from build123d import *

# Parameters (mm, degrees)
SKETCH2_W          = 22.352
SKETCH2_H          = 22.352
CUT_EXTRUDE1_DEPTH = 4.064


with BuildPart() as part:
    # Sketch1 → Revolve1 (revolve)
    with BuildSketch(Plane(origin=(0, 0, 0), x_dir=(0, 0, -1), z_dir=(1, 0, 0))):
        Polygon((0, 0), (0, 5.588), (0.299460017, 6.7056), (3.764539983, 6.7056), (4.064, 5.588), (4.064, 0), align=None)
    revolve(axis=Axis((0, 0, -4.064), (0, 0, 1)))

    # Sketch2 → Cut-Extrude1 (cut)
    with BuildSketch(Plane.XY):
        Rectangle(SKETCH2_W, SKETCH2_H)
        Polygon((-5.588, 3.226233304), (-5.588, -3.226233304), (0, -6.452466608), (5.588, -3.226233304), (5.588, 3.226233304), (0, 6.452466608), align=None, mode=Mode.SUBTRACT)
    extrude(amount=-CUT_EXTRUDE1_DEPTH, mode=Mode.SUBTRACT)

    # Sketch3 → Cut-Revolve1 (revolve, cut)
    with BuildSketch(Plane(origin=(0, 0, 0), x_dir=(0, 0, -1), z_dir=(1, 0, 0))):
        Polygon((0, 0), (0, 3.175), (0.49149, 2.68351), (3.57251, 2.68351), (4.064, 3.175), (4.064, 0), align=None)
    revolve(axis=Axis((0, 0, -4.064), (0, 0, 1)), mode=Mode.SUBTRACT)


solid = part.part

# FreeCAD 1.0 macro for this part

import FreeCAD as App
import Part
import Sketcher
Q = App.Units.Quantity


def add_polygon(sketch, points):
    """Adds a closed chain of lines whose ends are joined by coincident constraints."""
    first, n = sketch.GeometryCount, len(points)
    for a, b in zip(points, points[1:] + points[:1]):
        sketch.addGeometry(Part.LineSegment(App.Vector(*a, 0), App.Vector(*b, 0)), False)
    for i in range(n):
        sketch.addConstraint(Sketcher.Constraint("Coincident", first + i, 2, first + (i + 1) % n, 1))

doc = App.newDocument("Part")
body = doc.addObject("PartDesign::Body", "Body")

# Sketch on YZ plane
sketch1 = body.newObject("Sketcher::SketchObject", "Sketch")
sketch1.AttachmentSupport = (doc.getObject("YZ_Plane"), [""])
sketch1.MapMode = "FlatFace"
add_polygon(sketch1, [(5.6, 0), (0, 0), (0, -4.1), (5.6, -4.1), (6.7, -3.8), (6.7, -0.3)])  # lines 0-5
sketch1.addConstraint(Sketcher.Constraint("Horizontal", 0))
sketch1.addConstraint(Sketcher.Constraint("Vertical", 1))
sketch1.addConstraint(Sketcher.Constraint("Horizontal", 2))
sketch1.addConstraint(Sketcher.Constraint("Vertical", 4))
sketch1.addConstraint(Sketcher.Constraint("Coincident", 0, 2, -1, 1))
sketch1.addConstraint(Sketcher.Constraint("Vertical", 2, 2, 5, 2))
sketch1.addConstraint(Sketcher.Constraint("Equal", 3, 5))
sketch1.addConstraint(Sketcher.Constraint("Angle", 3, Q("15 deg")))
sketch1.addConstraint(Sketcher.Constraint("DistanceX", 0, 2, 0, 1, Q("0.22 in")))
sketch1.addConstraint(Sketcher.Constraint("DistanceY", 1, 2, 1, 1, Q("0.16 in")))
sketch1.addConstraint(Sketcher.Constraint("DistanceX", -1, 1, 3, 2, Q("0.264 in")))
revolution = body.newObject("PartDesign::Revolution", "Revolution")
revolution.Profile = sketch1
revolution.ReferenceAxis = (sketch1, ["V_Axis"])
revolution.Angle = 360

# Sketch on XY plane
sketch2 = body.newObject("Sketcher::SketchObject", "Sketch001")
sketch2.AttachmentSupport = (doc.getObject("XY_Plane"), [""])
sketch2.MapMode = "FlatFace"
add_polygon(sketch2, [(-11, 11), (-11, -11), (11, -11), (11, 11)])  # lines 0-3
add_polygon(sketch2, [(-6, -3), (-6, 3), (0, 6), (6, 3), (6, -3), (0, -6)])  # lines 4-9
sketch2.addConstraint(Sketcher.Constraint("Vertical", 0))
sketch2.addConstraint(Sketcher.Constraint("Horizontal", 1))
sketch2.addConstraint(Sketcher.Constraint("Vertical", 2))
sketch2.addConstraint(Sketcher.Constraint("Horizontal", 3))
sketch2.addConstraint(Sketcher.Constraint("Vertical", 4))
sketch2.addConstraint(Sketcher.Constraint("Vertical", 7))
sketch2.addConstraint(Sketcher.Constraint("Symmetric", 0, 2, 2, 2, -1, 1))
sketch2.addConstraint(Sketcher.Constraint("Symmetric", 4, 2, 7, 2, -1, 1))
sketch2.addConstraint(Sketcher.Constraint("Symmetric", 5, 2, 8, 2, -1, 1))
sketch2.addConstraint(Sketcher.Constraint("PointOnObject", 5, 2, -2))
sketch2.addConstraint(Sketcher.Constraint("Parallel", 6, 9))
sketch2.addConstraint(Sketcher.Constraint("Horizontal", 4, 2, 6, 2))
sketch2.addConstraint(Sketcher.Constraint("Equal", 3, 0))
sketch2.addConstraint(Sketcher.Constraint("Angle", 5, Q("30 deg")))
sketch2.addConstraint(Sketcher.Constraint("DistanceX", 1, 1, 1, 2, Q("0.88 in")))
sketch2.addConstraint(Sketcher.Constraint("DistanceX", 4, 2, -1, 1, Q("0.22 in")))
sketch2.addConstraint(Sketcher.Constraint("DistanceY", 7, 2, 5, 2, 9.6787))
pocket1 = body.newObject("PartDesign::Pocket", "Pocket")
pocket1.Profile = sketch2
pocket1.Length = Q("0.16 in")

# Sketch on YZ plane
sketch3 = body.newObject("Sketcher::SketchObject", "Sketch002")
sketch3.AttachmentSupport = (doc.getObject("YZ_Plane"), [""])
sketch3.MapMode = "FlatFace"
add_polygon(sketch3, [(3.2, 0), (0, 0), (0, -4.1), (3.2, -4.1), (2.7, -3.6), (2.7, -0.5)])  # lines 0-5
sketch3.addConstraint(Sketcher.Constraint("Horizontal", 0))
sketch3.addConstraint(Sketcher.Constraint("Vertical", 1))
sketch3.addConstraint(Sketcher.Constraint("Horizontal", 2))
sketch3.addConstraint(Sketcher.Constraint("Vertical", 4))
sketch3.addConstraint(Sketcher.Constraint("Coincident", 0, 2, -1, 1))
sketch3.addConstraint(Sketcher.Constraint("Perpendicular", 3, 5))
sketch3.addConstraint(Sketcher.Constraint("Vertical", 2, 2, 5, 2))
sketch3.addConstraint(Sketcher.Constraint("Equal", 3, 5))
sketch3.addConstraint(Sketcher.Constraint("DistanceY", 1, 2, 1, 1, Q("0.16 in")))
sketch3.addConstraint(Sketcher.Constraint("DistanceX", 0, 2, 0, 1, Q("0.125 in")))
sketch3.addConstraint(Sketcher.Constraint("DistanceY", 4, 1, 4, 2, Q("0.1213 in")))
groove = body.newObject("PartDesign::Groove", "Groove")
groove.Profile = sketch3
groove.ReferenceAxis = (sketch3, ["V_Axis"])
groove.Angle = 360

doc.recompute()
